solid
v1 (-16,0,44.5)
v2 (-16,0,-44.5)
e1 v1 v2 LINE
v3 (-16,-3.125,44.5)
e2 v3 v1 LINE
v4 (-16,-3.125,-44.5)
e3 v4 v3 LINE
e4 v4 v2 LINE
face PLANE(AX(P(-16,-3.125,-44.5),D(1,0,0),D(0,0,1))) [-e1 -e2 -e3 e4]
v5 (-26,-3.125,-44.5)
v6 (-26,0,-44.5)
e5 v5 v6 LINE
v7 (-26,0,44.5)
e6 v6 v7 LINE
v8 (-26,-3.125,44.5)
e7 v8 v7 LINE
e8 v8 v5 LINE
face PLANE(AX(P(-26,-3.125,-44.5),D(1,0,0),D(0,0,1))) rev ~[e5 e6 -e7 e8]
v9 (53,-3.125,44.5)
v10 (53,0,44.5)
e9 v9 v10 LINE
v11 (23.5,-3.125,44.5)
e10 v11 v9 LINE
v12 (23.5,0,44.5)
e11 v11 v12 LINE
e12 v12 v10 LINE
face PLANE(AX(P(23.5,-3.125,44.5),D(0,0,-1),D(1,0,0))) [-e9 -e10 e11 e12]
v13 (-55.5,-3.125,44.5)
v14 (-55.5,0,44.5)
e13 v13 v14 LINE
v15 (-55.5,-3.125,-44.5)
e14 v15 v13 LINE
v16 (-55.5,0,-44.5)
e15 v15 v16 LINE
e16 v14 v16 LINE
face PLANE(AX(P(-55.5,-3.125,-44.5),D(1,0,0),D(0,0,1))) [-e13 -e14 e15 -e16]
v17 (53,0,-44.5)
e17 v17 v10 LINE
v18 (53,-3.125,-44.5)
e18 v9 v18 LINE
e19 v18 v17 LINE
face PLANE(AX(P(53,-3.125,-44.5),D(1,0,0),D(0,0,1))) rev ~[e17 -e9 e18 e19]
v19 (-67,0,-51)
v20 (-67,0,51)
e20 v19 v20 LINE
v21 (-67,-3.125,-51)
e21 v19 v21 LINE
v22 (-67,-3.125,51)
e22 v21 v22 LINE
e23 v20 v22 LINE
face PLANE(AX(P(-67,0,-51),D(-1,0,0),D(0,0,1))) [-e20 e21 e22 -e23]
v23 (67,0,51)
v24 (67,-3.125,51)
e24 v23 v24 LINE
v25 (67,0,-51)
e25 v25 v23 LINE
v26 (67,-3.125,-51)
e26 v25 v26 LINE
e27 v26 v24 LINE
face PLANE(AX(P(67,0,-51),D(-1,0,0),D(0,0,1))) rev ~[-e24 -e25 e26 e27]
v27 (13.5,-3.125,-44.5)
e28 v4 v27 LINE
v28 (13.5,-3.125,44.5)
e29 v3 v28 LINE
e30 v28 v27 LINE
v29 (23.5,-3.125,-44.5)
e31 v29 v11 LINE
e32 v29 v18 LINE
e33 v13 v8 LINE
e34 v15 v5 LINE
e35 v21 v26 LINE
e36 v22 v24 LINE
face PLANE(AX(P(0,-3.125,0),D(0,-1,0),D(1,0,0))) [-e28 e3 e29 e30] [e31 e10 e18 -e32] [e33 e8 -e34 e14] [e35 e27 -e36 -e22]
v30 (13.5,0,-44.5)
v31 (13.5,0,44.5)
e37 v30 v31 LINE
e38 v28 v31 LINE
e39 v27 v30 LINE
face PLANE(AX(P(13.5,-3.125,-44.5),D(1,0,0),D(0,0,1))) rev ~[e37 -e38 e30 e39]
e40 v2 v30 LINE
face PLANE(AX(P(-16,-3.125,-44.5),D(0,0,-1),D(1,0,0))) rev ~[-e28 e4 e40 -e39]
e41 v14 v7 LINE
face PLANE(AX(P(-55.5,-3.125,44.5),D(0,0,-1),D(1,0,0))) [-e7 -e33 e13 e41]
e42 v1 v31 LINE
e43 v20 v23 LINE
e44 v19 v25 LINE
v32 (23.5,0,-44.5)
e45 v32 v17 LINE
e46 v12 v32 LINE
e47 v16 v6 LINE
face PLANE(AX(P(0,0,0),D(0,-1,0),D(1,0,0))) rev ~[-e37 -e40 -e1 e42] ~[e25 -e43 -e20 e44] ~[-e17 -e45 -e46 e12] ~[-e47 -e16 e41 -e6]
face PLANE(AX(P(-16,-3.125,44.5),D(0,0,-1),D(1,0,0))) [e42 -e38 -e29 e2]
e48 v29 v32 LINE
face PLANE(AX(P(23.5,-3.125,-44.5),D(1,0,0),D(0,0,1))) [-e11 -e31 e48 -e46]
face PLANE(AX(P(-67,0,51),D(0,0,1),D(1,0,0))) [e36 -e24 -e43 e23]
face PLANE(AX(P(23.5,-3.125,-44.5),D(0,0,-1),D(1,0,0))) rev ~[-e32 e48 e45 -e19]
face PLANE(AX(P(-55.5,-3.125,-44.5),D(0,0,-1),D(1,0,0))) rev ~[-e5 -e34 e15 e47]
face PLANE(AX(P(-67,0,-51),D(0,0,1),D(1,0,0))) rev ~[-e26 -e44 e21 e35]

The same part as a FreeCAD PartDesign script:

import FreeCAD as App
import Part
import Sketcher
Q = App.Units.Quantity


def add_polygon(sketch, points):
    """Adds a closed chain of lines whose ends are joined by coincident constraints."""
    first, n = sketch.GeometryCount, len(points)
    for a, b in zip(points, points[1:] + points[:1]):
        sketch.addGeometry(Part.LineSegment(App.Vector(*a, 0), App.Vector(*b, 0)), False)
    for i in range(n):
        sketch.addConstraint(Sketcher.Constraint("Coincident", first + i, 2, first + (i + 1) % n, 1))

doc = App.newDocument("Part")
params = doc.addObject("Spreadsheet::Sheet", "Params")
for row, (alias, value) in enumerate([
    ("sketch1_width", "134 mm"),
    ("sketch1_height", "102 mm"),
    ("pad1_length", "3.125 mm"),
    ("sketch2_width", "29.5 mm"),
    ("sketch2_height", "79.6 mm"),
    ("pocket1_length", "3.175 mm"),
    ("sketch3_width", "29.5 mm"),
    ("sketch3_height", "4.7 mm"),
    ("pocket2_length", "3.175 mm"),
], start=1):
    params.set(f"A{row}", alias)
    params.set(f"B{row}", "=" + value)
    params.setAlias(f"B{row}", alias)

body = doc.addObject("PartDesign::Body", "Body")

sketch1 = body.newObject("Sketcher::SketchObject", "Sketch")
sketch1.AttachmentSupport = (doc.getObject("XZ_Plane"), [""])
sketch1.MapMode = "FlatFace"
add_polygon(sketch1, [(-67, 51), (-67, -51), (67, -51), (67, 51)])
sketch1.addConstraint([
    Sketcher.Constraint("Vertical", 0),
    Sketcher.Constraint("Horizontal", 1),
    Sketcher.Constraint("Vertical", 2),
    Sketcher.Constraint("Horizontal", 3),
    Sketcher.Constraint("Symmetric", 0, 2, 2, 2, -1, 1),
    Sketcher.Constraint("DistanceX", 1, 1, 1, 2, Q("134 mm")),
    Sketcher.Constraint("DistanceY", 0, 2, 0, 1, Q("102 mm")),
])
sketch1.setExpression("Constraints[9]", "Params.sketch1_width")
sketch1.setExpression("Constraints[10]", "Params.sketch1_height")
pad1 = body.newObject("PartDesign::Pad", "Pad")
pad1.Profile = sketch1
pad1.setExpression("Length", "Params.pad1_length")

sketch2 = body.newObject("Sketcher::SketchObject", "Sketch001")
sketch2.AttachmentSupport = (doc.getObject("XZ_Plane"), [""])
sketch2.MapMode = "FlatFace"
sketch2.AttachmentOffset = App.Placement(App.Vector(0, 0, 3.125), App.Rotation())
add_polygon(sketch2, [(-55.5, 39.8), (-55.5, -39.8), (-26, -39.8), (-26, 39.8)])
add_polygon(sketch2, [(23.5, 39.8), (23.5, -39.8), (53, -39.8), (53, 39.8)])
add_polygon(sketch2, [(-16, 39.8), (-16, -39.8), (13.5, -39.8), (13.5, 39.8)])
sketch2.addConstraint([
    Sketcher.Constraint("Vertical", 0),
    Sketcher.Constraint("Horizontal", 1),
    Sketcher.Constraint("Vertical", 2),
    Sketcher.Constraint("Horizontal", 3),
    Sketcher.Constraint("Vertical", 4),
    Sketcher.Constraint("Horizontal", 5),
    Sketcher.Constraint("Vertical", 6),
    Sketcher.Constraint("Horizontal", 7),
    Sketcher.Constraint("Vertical", 8),
    Sketcher.Constraint("Horizontal", 9),
    Sketcher.Constraint("Vertical", 10),
    Sketcher.Constraint("Horizontal", 11),
    Sketcher.Constraint("Horizontal", 1, 2, 4, 2),
    Sketcher.Constraint("Horizontal", 3, 2, 6, 2),
    Sketcher.Constraint("Horizontal", 5, 2, 8, 2),
    Sketcher.Constraint("Horizontal", 7, 2, 10, 2),
    Sketcher.Constraint("Equal", 3, 5),
    Sketcher.Constraint("Equal", 7, 9),
    Sketcher.Constraint("DistanceX", 1, 1, 1, 2, Q("29.5 mm")),
    Sketcher.Constraint("DistanceY", 0, 2, 0, 1, Q("79.6 mm")),
    Sketcher.Constraint("DistanceX", 1, 2, -1, 1, Q("26 mm")),
    Sketcher.Constraint("DistanceX", -1, 1, 5, 2, Q("53 mm")),
    Sketcher.Constraint("DistanceX", 8, 2, -1, 1, Q("16 mm")),
    Sketcher.Constraint("DistanceY", 0, 2, -1, 1, Q("39.8 mm")),
])
sketch2.setExpression("Constraints[30]", "Params.sketch2_width")
sketch2.setExpression("Constraints[31]", "Params.sketch2_height")
pocket1 = body.newObject("PartDesign::Pocket", "Pocket")
pocket1.Profile = sketch2
pocket1.setExpression("Length", "Params.pocket1_length")

sketch3 = body.newObject("Sketcher::SketchObject", "Sketch002")
sketch3.AttachmentSupport = (doc.getObject("XZ_Plane"), [""])
sketch3.MapMode = "FlatFace"
sketch3.AttachmentOffset = App.Placement(App.Vector(0, 0, 3.125), App.Rotation())
add_polygon(sketch3, [(-55.5, 44.5), (-55.5, 39.8), (-26, 39.8), (-26, 44.5)])
add_polygon(sketch3, [(-16, 44.5), (-16, 39.8), (13.5, 39.8), (13.5, 44.5)])
add_polygon(sketch3, [(23.5, 44.5), (23.5, 39.8), (53, 39.8), (53, 44.5)])
add_polygon(sketch3, [(23.5, -39.8), (23.5, -44.5), (53, -44.5), (53, -39.8)])
add_polygon(sketch3, [(-16, -39.8), (-16, -44.5), (13.5, -44.5), (13.5, -39.8)])
add_polygon(sketch3, [(-55.5, -39.8), (-55.5, -44.5), (-26, -44.5), (-26, -39.8)])
sketch3.addConstraint([
    Sketcher.Constraint("Vertical", 0),
    Sketcher.Constraint("Horizontal", 1),
    Sketcher.Constraint("Vertical", 2),
    Sketcher.Constraint("Horizontal", 3),
    Sketcher.Constraint("Vertical", 4),
    Sketcher.Constraint("Horizontal", 5),
    Sketcher.Constraint("Vertical", 6),
    Sketcher.Constraint("Horizontal", 7),
    Sketcher.Constraint("Vertical", 8),
    Sketcher.Constraint("Horizontal", 9),
    Sketcher.Constraint("Vertical", 10),
    Sketcher.Constraint("Horizontal", 11),
    Sketcher.Constraint("Vertical", 12),
    Sketcher.Constraint("Horizontal", 13),
    Sketcher.Constraint("Vertical", 14),
    Sketcher.Constraint("Horizontal", 15),
    Sketcher.Constraint("Vertical", 16),
    Sketcher.Constraint("Horizontal", 17),
    Sketcher.Constraint("Vertical", 18),
    Sketcher.Constraint("Horizontal", 19),
    Sketcher.Constraint("Vertical", 20),
    Sketcher.Constraint("Horizontal", 21),
    Sketcher.Constraint("Vertical", 22),
    Sketcher.Constraint("Horizontal", 23),
    Sketcher.Constraint("Symmetric", 11, 2, 12, 2, -1),
    Sketcher.Constraint("Symmetric", 9, 2, 14, 2, -1),
    Sketcher.Constraint("Symmetric", 7, 2, 16, 2, -1),
    Sketcher.Constraint("Symmetric", 5, 2, 18, 2, -1),
    Sketcher.Constraint("Symmetric", 3, 2, 20, 2, -1),
    Sketcher.Constraint("Symmetric", 1, 2, 22, 2, -1),
    Sketcher.Constraint("Horizontal", 1, 2, 4, 2),
    Sketcher.Constraint("Horizontal", 3, 2, 6, 2),
    Sketcher.Constraint("Horizontal", 5, 2, 8, 2),
    Sketcher.Constraint("Horizontal", 7, 2, 10, 2),
    Sketcher.Constraint("Equal", 3, 5),
    Sketcher.Constraint("Equal", 7, 9),
    Sketcher.Constraint("DistanceX", 1, 1, 1, 2, Q("29.5 mm")),
    Sketcher.Constraint("DistanceY", 0, 2, 0, 1, Q("4.7 mm")),
    Sketcher.Constraint("DistanceX", 1, 2, -1, 1, Q("26 mm")),
    Sketcher.Constraint("DistanceX", 4, 2, -1, 1, Q("16 mm")),
    Sketcher.Constraint("DistanceX", -1, 1, 9, 2, Q("53 mm")),
    Sketcher.Constraint("DistanceY", 12, 2, 11, 2, Q("89 mm")),
])
sketch3.setExpression("Constraints[60]", "Params.sketch3_width")
sketch3.setExpression("Constraints[61]", "Params.sketch3_height")
pocket2 = body.newObject("PartDesign::Pocket", "Pocket001")
pocket2.Profile = sketch3
pocket2.setExpression("Length", "Params.pocket2_length")

doc.recompute()
